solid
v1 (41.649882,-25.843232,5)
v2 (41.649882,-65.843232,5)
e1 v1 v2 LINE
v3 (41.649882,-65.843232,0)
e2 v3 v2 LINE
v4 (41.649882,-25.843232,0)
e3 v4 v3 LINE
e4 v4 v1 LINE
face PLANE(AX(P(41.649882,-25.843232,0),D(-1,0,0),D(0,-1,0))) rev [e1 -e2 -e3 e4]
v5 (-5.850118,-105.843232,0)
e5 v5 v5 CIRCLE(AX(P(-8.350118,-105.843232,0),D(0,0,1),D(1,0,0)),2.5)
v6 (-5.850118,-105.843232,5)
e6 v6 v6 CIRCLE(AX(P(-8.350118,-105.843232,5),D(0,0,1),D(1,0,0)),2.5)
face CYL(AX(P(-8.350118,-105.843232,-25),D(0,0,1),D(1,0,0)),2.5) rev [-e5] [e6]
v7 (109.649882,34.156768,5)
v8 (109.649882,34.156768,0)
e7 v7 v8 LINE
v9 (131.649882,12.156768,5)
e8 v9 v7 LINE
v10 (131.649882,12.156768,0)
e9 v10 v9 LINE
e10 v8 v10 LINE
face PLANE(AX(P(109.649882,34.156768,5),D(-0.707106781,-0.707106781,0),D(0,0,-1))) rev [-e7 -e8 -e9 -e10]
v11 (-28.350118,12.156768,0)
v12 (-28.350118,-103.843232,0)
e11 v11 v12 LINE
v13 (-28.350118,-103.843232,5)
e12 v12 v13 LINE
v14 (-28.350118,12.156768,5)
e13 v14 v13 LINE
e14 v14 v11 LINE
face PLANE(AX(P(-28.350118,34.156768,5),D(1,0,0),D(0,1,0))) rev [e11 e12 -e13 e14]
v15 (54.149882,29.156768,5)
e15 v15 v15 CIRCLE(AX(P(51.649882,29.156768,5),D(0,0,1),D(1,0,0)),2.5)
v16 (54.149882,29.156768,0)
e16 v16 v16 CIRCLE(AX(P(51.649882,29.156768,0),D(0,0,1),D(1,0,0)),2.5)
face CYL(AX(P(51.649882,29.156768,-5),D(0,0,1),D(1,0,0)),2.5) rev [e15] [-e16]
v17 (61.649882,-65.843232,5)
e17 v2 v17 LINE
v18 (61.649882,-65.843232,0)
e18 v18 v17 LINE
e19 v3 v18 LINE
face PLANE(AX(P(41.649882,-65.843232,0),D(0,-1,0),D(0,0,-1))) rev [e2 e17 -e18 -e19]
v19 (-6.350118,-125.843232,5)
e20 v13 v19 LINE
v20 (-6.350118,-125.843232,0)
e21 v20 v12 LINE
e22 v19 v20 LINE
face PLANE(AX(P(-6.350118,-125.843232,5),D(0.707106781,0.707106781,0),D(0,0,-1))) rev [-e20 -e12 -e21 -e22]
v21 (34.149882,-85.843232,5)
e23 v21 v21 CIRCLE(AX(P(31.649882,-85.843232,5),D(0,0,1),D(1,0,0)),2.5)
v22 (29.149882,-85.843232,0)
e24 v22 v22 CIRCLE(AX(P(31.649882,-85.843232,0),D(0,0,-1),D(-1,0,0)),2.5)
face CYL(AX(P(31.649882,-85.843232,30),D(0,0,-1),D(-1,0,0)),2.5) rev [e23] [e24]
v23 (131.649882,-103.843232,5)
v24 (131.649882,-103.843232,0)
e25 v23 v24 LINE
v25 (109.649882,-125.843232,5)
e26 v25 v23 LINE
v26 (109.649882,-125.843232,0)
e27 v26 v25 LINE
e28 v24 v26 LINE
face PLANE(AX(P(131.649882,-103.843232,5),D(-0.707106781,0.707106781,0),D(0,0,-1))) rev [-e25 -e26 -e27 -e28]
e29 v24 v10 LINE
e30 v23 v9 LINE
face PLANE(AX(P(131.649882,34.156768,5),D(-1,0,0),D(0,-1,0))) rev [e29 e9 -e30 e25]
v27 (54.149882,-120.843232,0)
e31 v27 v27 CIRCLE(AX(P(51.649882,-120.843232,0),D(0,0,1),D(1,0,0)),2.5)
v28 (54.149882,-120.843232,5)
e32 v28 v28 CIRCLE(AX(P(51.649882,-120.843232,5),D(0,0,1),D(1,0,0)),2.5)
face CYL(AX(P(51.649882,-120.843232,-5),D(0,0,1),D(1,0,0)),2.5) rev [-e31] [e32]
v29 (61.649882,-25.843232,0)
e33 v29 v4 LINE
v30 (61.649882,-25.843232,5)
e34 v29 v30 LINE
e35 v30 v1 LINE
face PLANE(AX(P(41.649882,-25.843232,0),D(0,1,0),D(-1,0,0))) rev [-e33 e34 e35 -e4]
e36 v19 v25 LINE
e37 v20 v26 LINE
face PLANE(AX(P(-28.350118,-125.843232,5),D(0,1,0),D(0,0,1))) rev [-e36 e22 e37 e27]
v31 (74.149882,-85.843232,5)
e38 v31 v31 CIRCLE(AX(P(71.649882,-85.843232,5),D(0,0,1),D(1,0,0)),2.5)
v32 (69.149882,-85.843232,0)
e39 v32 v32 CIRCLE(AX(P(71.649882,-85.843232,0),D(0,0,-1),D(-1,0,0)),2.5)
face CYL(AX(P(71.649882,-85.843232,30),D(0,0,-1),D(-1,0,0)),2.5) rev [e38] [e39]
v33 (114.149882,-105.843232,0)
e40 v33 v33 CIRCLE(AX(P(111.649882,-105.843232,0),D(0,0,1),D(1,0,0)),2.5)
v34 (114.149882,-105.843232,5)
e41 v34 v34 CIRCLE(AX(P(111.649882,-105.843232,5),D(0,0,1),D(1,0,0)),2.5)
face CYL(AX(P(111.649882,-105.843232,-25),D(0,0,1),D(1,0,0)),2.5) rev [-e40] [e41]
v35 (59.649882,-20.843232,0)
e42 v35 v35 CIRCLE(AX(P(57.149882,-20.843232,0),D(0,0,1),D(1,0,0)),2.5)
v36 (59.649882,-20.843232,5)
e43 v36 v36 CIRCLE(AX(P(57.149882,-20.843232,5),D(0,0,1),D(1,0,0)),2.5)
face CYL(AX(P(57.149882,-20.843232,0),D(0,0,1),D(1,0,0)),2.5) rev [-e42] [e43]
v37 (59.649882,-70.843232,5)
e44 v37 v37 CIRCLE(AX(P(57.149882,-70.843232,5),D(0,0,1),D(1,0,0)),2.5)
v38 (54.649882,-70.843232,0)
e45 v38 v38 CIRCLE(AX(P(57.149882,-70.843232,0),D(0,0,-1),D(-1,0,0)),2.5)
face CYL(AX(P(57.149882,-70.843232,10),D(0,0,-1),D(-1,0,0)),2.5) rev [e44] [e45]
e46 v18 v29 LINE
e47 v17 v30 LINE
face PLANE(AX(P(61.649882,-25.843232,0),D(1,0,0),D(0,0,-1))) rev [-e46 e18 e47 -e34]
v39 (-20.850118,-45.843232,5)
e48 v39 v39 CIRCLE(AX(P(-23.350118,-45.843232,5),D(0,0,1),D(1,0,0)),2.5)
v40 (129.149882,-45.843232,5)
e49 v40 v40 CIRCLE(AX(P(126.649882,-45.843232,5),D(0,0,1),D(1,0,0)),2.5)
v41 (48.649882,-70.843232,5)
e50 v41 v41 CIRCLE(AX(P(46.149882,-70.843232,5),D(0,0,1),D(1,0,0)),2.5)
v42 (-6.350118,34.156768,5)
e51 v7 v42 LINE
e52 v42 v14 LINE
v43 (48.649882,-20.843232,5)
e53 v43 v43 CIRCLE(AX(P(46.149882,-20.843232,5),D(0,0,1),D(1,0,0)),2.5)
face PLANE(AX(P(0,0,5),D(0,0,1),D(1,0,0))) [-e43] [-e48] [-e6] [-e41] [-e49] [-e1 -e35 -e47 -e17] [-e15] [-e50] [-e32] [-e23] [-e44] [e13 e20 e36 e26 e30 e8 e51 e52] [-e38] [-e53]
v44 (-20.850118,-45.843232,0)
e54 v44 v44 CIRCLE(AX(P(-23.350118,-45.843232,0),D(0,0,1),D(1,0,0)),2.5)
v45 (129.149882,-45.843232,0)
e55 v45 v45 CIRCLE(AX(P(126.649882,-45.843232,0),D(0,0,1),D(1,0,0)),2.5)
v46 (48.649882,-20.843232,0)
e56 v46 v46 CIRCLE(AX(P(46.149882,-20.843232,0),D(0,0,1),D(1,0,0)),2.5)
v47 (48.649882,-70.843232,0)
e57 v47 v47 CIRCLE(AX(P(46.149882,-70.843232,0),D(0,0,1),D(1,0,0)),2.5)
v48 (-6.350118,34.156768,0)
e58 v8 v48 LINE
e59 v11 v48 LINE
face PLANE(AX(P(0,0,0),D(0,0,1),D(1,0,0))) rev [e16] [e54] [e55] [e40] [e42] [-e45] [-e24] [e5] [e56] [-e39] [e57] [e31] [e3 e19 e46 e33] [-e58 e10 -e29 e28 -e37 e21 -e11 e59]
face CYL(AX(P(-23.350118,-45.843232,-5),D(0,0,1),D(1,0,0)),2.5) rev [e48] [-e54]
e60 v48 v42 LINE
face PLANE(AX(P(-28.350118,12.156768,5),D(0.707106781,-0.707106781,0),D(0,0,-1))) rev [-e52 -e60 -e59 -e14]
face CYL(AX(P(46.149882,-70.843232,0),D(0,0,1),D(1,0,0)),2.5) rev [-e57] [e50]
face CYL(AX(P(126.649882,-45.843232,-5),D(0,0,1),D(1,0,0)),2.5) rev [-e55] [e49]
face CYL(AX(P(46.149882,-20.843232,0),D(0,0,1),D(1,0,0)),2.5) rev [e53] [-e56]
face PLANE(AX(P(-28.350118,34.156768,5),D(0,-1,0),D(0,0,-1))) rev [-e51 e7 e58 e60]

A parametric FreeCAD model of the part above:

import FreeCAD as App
import Part
import Sketcher


def edges_at(feature, points):
    """Names of the edges that pass closest to the given points."""
    edges = feature.Shape.Edges
    near = lambda p: min(range(len(edges)), key=lambda i: edges[i].distToShape(Part.Vertex(*p))[0])
    return sorted({f"Edge{near(p) + 1}" for p in points})

doc = App.newDocument("Part")
params = doc.addObject("Spreadsheet::Sheet", "Params")
for row, (alias, value) in enumerate([
    ("sketch1_width", "160 mm"),
    ("pad1_length", "5 mm"),
    ("chamfer_size", "22 mm"),
    ("sketch2_width", "20 mm"),
    ("sketch2_height", "40 mm"),
    ("pocket1_length", "5 mm"),
    ("sketch3_diameter", "5 mm"),
    ("pocket2_length", "5 mm"),
    ("sketch4_diameter", "5 mm"),
    ("pocket3_length", "5 mm"),
    ("sketch5_diameter", "5 mm"),
    ("pocket4_length", "10 mm"),
    ("sketch6_diameter", "5 mm"),
    ("pocket5_length", "10 mm"),
    ("sketch7_diameter", "5 mm"),
    ("pocket6_length", "10 mm"),
    ("sketch8_diameter", "5 mm"),
    ("pocket7_length", "10 mm"),
    ("sketch9_diameter", "5 mm"),
    ("pocket8_length", "30 mm"),
    ("sketch10_diameter", "5 mm"),
    ("pocket9_length", "30 mm"),
], start=1):
    params.set(f"A{row}", alias)
    params.set(f"B{row}", "=" + value)
    params.setAlias(f"B{row}", alias)

body = doc.addObject("PartDesign::Body", "Body")

# Sketch on XY plane
sketch1 = body.newObject("Sketcher::SketchObject", "Sketch")
sketch1.AttachmentSupport = (doc.getObject("XY_Plane"), [""])
sketch1.MapMode = "FlatFace"
sketch1.addGeometry([
    Part.LineSegment(App.Vector(-28, 34, 0), App.Vector(-28, -126, 0)),
    Part.LineSegment(App.Vector(-28, -126, 0), App.Vector(132, -126, 0)),
    Part.LineSegment(App.Vector(132, -126, 0), App.Vector(132, 34, 0)),
    Part.LineSegment(App.Vector(132, 34, 0), App.Vector(-28, 34, 0)),
], False)
sketch1.addConstraint([
    Sketcher.Constraint("Coincident", 0, 2, 1, 1),
    Sketcher.Constraint("Coincident", 1, 2, 2, 1),
    Sketcher.Constraint("Coincident", 2, 2, 3, 1),
    Sketcher.Constraint("Coincident", 3, 2, 0, 1),
    Sketcher.Constraint("Vertical", 0),
    Sketcher.Constraint("Horizontal", 1),
    Sketcher.Constraint("Vertical", 2),
    Sketcher.Constraint("Horizontal", 3),
    Sketcher.Constraint("Equal", 3, 0),
    Sketcher.Constraint("DistanceX", 1, 1, 1, 2, 160.0),
    Sketcher.Constraint("DistanceY", 0, 2, -1, 1, 125.843232),
    Sketcher.Constraint("DistanceX", 0, 2, -1, 1, 28.350118),
])
sketch1.setExpression("Constraints[9]", "Params.sketch1_width")
pad1 = body.newObject("PartDesign::Pad", "Pad")
pad1.Profile = sketch1
pad1.setExpression("Length", "Params.pad1_length")
doc.recompute()

chamfer = body.newObject("PartDesign::Chamfer", "Chamfer")
chamfer.Base = (pad1, edges_at(pad1, [
    (-28.35, 34.157, 2.5),
    (131.65, 34.157, 2.5),
    (131.65, -125.843, 2.5),
    (-28.35, -125.843, 2.5),
]))
chamfer.setExpression("Size", "Params.chamfer_size")

# Sketch on XY plane
sketch2 = body.newObject("Sketcher::SketchObject", "Sketch001")
sketch2.AttachmentSupport = (doc.getObject("XY_Plane"), [""])
sketch2.MapMode = "FlatFace"
sketch2.AttachmentOffset = App.Placement(App.Vector(0, 0, 5), App.Rotation())
sketch2.addGeometry([
    Part.LineSegment(App.Vector(42, -26, 0), App.Vector(42, -66, 0)),
    Part.LineSegment(App.Vector(42, -66, 0), App.Vector(62, -66, 0)),
    Part.LineSegment(App.Vector(62, -66, 0), App.Vector(62, -26, 0)),
    Part.LineSegment(App.Vector(62, -26, 0), App.Vector(42, -26, 0)),
], False)
sketch2.addConstraint([
    Sketcher.Constraint("Coincident", 0, 2, 1, 1),
    Sketcher.Constraint("Coincident", 1, 2, 2, 1),
    Sketcher.Constraint("Coincident", 2, 2, 3, 1),
    Sketcher.Constraint("Coincident", 3, 2, 0, 1),
    Sketcher.Constraint("Vertical", 0),
    Sketcher.Constraint("Horizontal", 1),
    Sketcher.Constraint("Vertical", 2),
    Sketcher.Constraint("Horizontal", 3),
    Sketcher.Constraint("DistanceX", 1, 1, 1, 2, 20.0),
    Sketcher.Constraint("DistanceY", 0, 2, 0, 1, 40.0),
    Sketcher.Constraint("DistanceY", 0, 2, -1, 1, 65.843232),
    Sketcher.Constraint("DistanceX", -1, 1, 0, 2, 41.649882),
])
sketch2.setExpression("Constraints[8]", "Params.sketch2_width")
sketch2.setExpression("Constraints[9]", "Params.sketch2_height")
pocket1 = body.newObject("PartDesign::Pocket", "Pocket")
pocket1.Profile = sketch2
pocket1.setExpression("Length", "Params.pocket1_length")

# Sketch on XY plane
sketch3 = body.newObject("Sketcher::SketchObject", "Sketch002")
sketch3.AttachmentSupport = (doc.getObject("XY_Plane"), [""])
sketch3.MapMode = "FlatFace"
sketch3.AttachmentOffset = App.Placement(App.Vector(0, 0, 5), App.Rotation())
sketch3.addGeometry([
    Part.Circle(App.Vector(46.1, -20.8, 0), App.Vector(0, 0, 1), 2.5),
    Part.Circle(App.Vector(57.1, -20.8, 0), App.Vector(0, 0, 1), 2.5),
], False)
sketch3.addConstraint([
    Sketcher.Constraint("Equal", 0, 1),
    Sketcher.Constraint("Horizontal", 0, 3, 1, 3),
    Sketcher.Constraint("Diameter", 0, 5.0),
    Sketcher.Constraint("DistanceX", 0, 3, 1, 3, 11.0),
    Sketcher.Constraint("DistanceY", 0, 3, -1, 1, 20.843232),
    Sketcher.Constraint("DistanceX", -1, 1, 0, 3, 46.149882),
])
sketch3.setExpression("Constraints[2]", "Params.sketch3_diameter")
pocket2 = body.newObject("PartDesign::Pocket", "Pocket001")
pocket2.Profile = sketch3
pocket2.setExpression("Length", "Params.pocket2_length")

# Sketch on XY plane
sketch4 = body.newObject("Sketcher::SketchObject", "Sketch003")
sketch4.AttachmentSupport = (doc.getObject("XY_Plane"), [""])
sketch4.MapMode = "FlatFace"
sketch4.AttachmentOffset = App.Placement(App.Vector(0, 0, 5), App.Rotation())
sketch4.addGeometry([
    Part.Circle(App.Vector(46.1, -70.8, 0), App.Vector(0, 0, 1), 2.5),
    Part.Circle(App.Vector(57.1, -61.8, 0), App.Vector(0, 0, 1), 2.5),
], False)
sketch4.addConstraint([
    Sketcher.Constraint("Equal", 0, 1),
    Sketcher.Constraint("Diameter", 0, 5.0),
    Sketcher.Constraint("DistanceX", 0, 3, 1, 3, 11.0),
    Sketcher.Constraint("DistanceY", 0, 3, 1, 3, 9.0),
    Sketcher.Constraint("DistanceY", 0, 3, -1, 1, 70.843232),
    Sketcher.Constraint("DistanceX", -1, 1, 0, 3, 46.149882),
])
sketch4.setExpression("Constraints[1]", "Params.sketch4_diameter")
pocket3 = body.newObject("PartDesign::Pocket", "Pocket002")
pocket3.Profile = sketch4
pocket3.setExpression("Length", "Params.pocket3_length")

# Sketch on XY plane
sketch5 = body.newObject("Sketcher::SketchObject", "Sketch004")
sketch5.AttachmentSupport = (doc.getObject("XY_Plane"), [""])
sketch5.MapMode = "FlatFace"
sketch5.addGeometry(Part.Circle(App.Vector(57.1, -70.8, 0), App.Vector(0, 0, 1), 2.5), False)
sketch5.addConstraint([
    Sketcher.Constraint("Diameter", 0, 5.0),
    Sketcher.Constraint("DistanceY", 0, 3, -1, 1, 70.843232),
    Sketcher.Constraint("DistanceX", -1, 1, 0, 3, 57.149882),
])
sketch5.setExpression("Constraints[0]", "Params.sketch5_diameter")
pocket4 = body.newObject("PartDesign::Pocket", "Pocket003")
pocket4.Profile = sketch5
pocket4.setExpression("Length", "Params.pocket4_length")
pocket4.Reversed = True

# Sketch on XY plane
sketch6 = body.newObject("Sketcher::SketchObject", "Sketch005")
sketch6.AttachmentSupport = (doc.getObject("XY_Plane"), [""])
sketch6.MapMode = "FlatFace"
sketch6.AttachmentOffset = App.Placement(App.Vector(0, 0, 5), App.Rotation())
sketch6.addGeometry(Part.Circle(App.Vector(51.6, 29.2, 0), App.Vector(0, 0, 1), 2.5), False)
sketch6.addConstraint([
    Sketcher.Constraint("Diameter", 0, 5.0),
    Sketcher.Constraint("DistanceY", -1, 1, 0, 3, 29.156768),
    Sketcher.Constraint("DistanceX", -1, 1, 0, 3, 51.649882),
])
sketch6.setExpression("Constraints[0]", "Params.sketch6_diameter")
pocket5 = body.newObject("PartDesign::Pocket", "Pocket004")
pocket5.Profile = sketch6
pocket5.setExpression("Length", "Params.pocket5_length")

# Sketch on XY plane
sketch7 = body.newObject("Sketcher::SketchObject", "Sketch006")
sketch7.AttachmentSupport = (doc.getObject("XY_Plane"), [""])
sketch7.MapMode = "FlatFace"
sketch7.AttachmentOffset = App.Placement(App.Vector(0, 0, 5), App.Rotation())
sketch7.addGeometry(Part.Circle(App.Vector(-23.4, -45.8, 0), App.Vector(0, 0, 1), 2.5), False)
sketch7.addConstraint([
    Sketcher.Constraint("Diameter", 0, 5.0),
    Sketcher.Constraint("DistanceY", 0, 3, -1, 1, 45.843232),
    Sketcher.Constraint("DistanceX", 0, 3, -1, 1, 23.350118),
])
sketch7.setExpression("Constraints[0]", "Params.sketch7_diameter")
pocket6 = body.newObject("PartDesign::Pocket", "Pocket005")
pocket6.Profile = sketch7
pocket6.setExpression("Length", "Params.pocket6_length")

# Sketch on XY plane
sketch8 = body.newObject("Sketcher::SketchObject", "Sketch007")
sketch8.AttachmentSupport = (doc.getObject("XY_Plane"), [""])
sketch8.MapMode = "FlatFace"
sketch8.AttachmentOffset = App.Placement(App.Vector(0, 0, 5), App.Rotation())
sketch8.addGeometry([
    Part.Circle(App.Vector(51.6, -120.8, 0), App.Vector(0, 0, 1), 2.5),
    Part.Circle(App.Vector(126.6, -45.8, 0), App.Vector(0, 0, 1), 2.5),
], False)
sketch8.addConstraint([
    Sketcher.Constraint("Equal", 0, 1),
    Sketcher.Constraint("Diameter", 0, 5.0),
    Sketcher.Constraint("DistanceX", 0, 3, 1, 3, 75.0),
    Sketcher.Constraint("DistanceY", 0, 3, 1, 3, 75.0),
    Sketcher.Constraint("DistanceY", 0, 3, -1, 1, 120.843232),
    Sketcher.Constraint("DistanceX", -1, 1, 0, 3, 51.649882),
])
sketch8.setExpression("Constraints[1]", "Params.sketch8_diameter")
pocket7 = body.newObject("PartDesign::Pocket", "Pocket006")
pocket7.Profile = sketch8
pocket7.setExpression("Length", "Params.pocket7_length")

# Sketch on XY plane
sketch9 = body.newObject("Sketcher::SketchObject", "Sketch008")
sketch9.AttachmentSupport = (doc.getObject("XY_Plane"), [""])
sketch9.MapMode = "FlatFace"
sketch9.AttachmentOffset = App.Placement(App.Vector(0, 0, 5), App.Rotation())
sketch9.addGeometry([
    Part.Circle(App.Vector(111.6, -105.8, 0), App.Vector(0, 0, 1), 2.5),
    Part.Circle(App.Vector(-8.4, -105.8, 0), App.Vector(0, 0, 1), 2.5),
], False)
sketch9.addConstraint([
    Sketcher.Constraint("Equal", 0, 1),
    Sketcher.Constraint("Horizontal", 0, 3, 1, 3),
    Sketcher.Constraint("Diameter", 0, 5.0),
    Sketcher.Constraint("DistanceX", 1, 3, 0, 3, 120.0),
    Sketcher.Constraint("DistanceY", 0, 3, -1, 1, 105.843232),
    Sketcher.Constraint("DistanceX", -1, 1, 0, 3, 111.649882),
])
sketch9.setExpression("Constraints[2]", "Params.sketch9_diameter")
pocket8 = body.newObject("PartDesign::Pocket", "Pocket007")
pocket8.Profile = sketch9
pocket8.setExpression("Length", "Params.pocket8_length")

# Sketch on XY plane
sketch10 = body.newObject("Sketcher::SketchObject", "Sketch009")
sketch10.AttachmentSupport = (doc.getObject("XY_Plane"), [""])
sketch10.MapMode = "FlatFace"
sketch10.addGeometry([
    Part.Circle(App.Vector(71.6, -85.8, 0), App.Vector(0, 0, 1), 2.5),
    Part.Circle(App.Vector(31.6, -85.8, 0), App.Vector(0, 0, 1), 2.5),
], False)
sketch10.addConstraint([
    Sketcher.Constraint("Equal", 0, 1),
    Sketcher.Constraint("Horizontal", 0, 3, 1, 3),
    Sketcher.Constraint("Diameter", 0, 5.0),
    Sketcher.Constraint("DistanceX", 1, 3, 0, 3, 40.0),
    Sketcher.Constraint("DistanceY", 0, 3, -1, 1, 85.843232),
    Sketcher.Constraint("DistanceX", -1, 1, 0, 3, 71.649882),
])
sketch10.setExpression("Constraints[2]", "Params.sketch10_diameter")
pocket9 = body.newObject("PartDesign::Pocket", "Pocket008")
pocket9.Profile = sketch10
pocket9.setExpression("Length", "Params.pocket9_length")
pocket9.Reversed = True

doc.recompute()
